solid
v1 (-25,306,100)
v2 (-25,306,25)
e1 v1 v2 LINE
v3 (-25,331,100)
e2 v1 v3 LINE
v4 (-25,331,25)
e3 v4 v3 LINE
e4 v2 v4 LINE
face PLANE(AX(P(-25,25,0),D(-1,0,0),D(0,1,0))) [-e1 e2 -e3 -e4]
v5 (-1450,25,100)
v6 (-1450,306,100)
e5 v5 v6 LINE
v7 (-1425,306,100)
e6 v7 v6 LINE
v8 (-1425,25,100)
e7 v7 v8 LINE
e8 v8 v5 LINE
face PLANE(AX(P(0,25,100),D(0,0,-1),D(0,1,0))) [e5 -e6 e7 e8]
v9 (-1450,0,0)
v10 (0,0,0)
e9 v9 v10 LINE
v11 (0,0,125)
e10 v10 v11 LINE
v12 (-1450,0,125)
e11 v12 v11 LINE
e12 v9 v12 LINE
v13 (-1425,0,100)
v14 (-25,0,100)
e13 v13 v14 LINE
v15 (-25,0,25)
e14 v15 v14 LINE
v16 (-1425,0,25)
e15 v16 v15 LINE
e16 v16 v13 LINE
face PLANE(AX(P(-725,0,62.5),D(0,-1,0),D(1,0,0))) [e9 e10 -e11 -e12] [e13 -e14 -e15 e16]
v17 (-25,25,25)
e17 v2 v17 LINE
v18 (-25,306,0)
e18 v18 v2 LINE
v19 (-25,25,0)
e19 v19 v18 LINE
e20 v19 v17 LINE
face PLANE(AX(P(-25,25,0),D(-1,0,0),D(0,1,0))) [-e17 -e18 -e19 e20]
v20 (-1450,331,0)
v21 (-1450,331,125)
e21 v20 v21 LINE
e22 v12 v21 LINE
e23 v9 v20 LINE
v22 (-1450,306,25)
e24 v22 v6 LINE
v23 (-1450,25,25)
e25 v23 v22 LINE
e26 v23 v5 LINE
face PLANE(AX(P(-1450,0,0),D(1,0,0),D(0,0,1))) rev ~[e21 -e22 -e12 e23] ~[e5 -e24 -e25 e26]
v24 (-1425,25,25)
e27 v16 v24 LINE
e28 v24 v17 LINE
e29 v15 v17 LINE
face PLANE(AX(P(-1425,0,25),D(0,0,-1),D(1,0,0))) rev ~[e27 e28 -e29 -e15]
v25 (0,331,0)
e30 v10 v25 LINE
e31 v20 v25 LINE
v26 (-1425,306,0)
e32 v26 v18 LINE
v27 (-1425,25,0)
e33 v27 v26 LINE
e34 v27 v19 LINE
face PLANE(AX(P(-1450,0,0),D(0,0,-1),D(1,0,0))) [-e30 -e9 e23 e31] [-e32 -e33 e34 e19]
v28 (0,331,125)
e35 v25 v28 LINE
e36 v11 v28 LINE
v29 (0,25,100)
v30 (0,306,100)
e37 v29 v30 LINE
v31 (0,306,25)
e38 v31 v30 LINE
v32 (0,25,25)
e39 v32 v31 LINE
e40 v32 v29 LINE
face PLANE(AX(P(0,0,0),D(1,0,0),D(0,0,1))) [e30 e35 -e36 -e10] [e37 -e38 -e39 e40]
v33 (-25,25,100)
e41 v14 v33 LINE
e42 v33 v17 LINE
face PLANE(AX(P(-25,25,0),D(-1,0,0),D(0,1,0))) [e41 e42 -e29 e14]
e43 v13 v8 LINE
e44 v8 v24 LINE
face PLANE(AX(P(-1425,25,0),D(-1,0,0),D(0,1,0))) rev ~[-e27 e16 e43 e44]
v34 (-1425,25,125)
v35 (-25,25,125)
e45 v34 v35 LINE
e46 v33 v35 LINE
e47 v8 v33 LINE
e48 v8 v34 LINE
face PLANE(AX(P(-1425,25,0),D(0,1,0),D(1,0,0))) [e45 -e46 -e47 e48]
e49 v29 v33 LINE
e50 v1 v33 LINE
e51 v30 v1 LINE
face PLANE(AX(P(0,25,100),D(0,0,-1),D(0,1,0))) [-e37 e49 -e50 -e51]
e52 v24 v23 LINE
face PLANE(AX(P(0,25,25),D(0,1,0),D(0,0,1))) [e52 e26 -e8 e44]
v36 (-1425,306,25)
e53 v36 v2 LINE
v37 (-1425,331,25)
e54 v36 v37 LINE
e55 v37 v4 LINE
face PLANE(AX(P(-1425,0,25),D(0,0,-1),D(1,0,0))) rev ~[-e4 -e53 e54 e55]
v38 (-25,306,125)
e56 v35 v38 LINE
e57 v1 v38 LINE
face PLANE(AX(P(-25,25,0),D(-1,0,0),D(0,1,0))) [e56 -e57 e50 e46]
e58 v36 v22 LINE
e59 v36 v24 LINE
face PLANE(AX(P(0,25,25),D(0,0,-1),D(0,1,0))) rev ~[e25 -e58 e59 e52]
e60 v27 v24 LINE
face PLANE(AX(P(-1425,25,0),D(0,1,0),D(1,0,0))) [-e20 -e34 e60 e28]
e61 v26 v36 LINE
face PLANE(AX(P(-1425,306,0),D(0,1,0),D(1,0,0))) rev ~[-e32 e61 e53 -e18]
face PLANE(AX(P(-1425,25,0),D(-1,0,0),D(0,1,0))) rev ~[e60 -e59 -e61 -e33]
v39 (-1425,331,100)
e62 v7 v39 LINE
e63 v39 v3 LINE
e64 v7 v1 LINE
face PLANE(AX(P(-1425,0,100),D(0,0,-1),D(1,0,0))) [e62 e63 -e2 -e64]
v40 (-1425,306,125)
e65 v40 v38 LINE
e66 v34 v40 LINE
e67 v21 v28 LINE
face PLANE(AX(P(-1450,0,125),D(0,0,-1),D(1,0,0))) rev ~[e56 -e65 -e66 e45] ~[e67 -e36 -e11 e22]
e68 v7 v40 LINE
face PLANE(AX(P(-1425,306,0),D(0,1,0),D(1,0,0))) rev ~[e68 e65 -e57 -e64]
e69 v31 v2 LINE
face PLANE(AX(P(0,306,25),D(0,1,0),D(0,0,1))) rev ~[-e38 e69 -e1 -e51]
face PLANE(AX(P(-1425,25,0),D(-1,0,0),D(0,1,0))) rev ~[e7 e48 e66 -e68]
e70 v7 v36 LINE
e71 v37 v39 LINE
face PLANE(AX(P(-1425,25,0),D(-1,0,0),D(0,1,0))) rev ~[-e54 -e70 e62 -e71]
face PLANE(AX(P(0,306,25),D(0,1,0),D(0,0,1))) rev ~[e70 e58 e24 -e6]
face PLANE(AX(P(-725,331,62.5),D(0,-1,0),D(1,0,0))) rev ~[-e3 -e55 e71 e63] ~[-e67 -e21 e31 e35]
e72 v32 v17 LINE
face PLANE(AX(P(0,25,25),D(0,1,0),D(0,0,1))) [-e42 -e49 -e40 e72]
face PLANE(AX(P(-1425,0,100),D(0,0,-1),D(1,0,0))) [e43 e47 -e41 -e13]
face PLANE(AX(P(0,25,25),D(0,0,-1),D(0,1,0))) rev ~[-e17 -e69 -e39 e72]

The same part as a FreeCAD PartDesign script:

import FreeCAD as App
import Part
import Sketcher

V = App.Vector


def add_polygon(sketch, points):
    """Adds a closed chain of lines whose ends are joined by coincident constraints."""
    first, n = sketch.GeometryCount, len(points)
    for a, b in zip(points, points[1:] + points[:1]):
        sketch.addGeometry(Part.LineSegment(App.Vector(*a, 0), App.Vector(*b, 0)), False)
    for i in range(n):
        sketch.addConstraint(Sketcher.Constraint("Coincident", first + i, 2, first + (i + 1) % n, 1))

doc = App.newDocument("Part")
body = doc.addObject("PartDesign::Body", "Body")

# Sketch on XZ plane
sketch1 = doc.addObject("Sketcher::SketchObject", "Sketch")
body.addObject(sketch1)
sketch1.AttachmentSupport = (doc.XZ_Plane, [""])
sketch1.MapMode = "FlatFace"
add_polygon(sketch1, [(-1450, 125), (-1450, 0), (0, 0), (0, 125)])  # lines 0-3
add_polygon(sketch1, [(-25, 25), (-1425, 25), (-1425, 100), (-25, 100)])  # lines 4-7
sketch1.addConstraint([
    Sketcher.Constraint("Vertical", 0),
    Sketcher.Constraint("Horizontal", 1),
    Sketcher.Constraint("Vertical", 2),
    Sketcher.Constraint("Horizontal", 3),
    Sketcher.Constraint("Horizontal", 4),
    Sketcher.Constraint("Vertical", 5),
    Sketcher.Constraint("Horizontal", 6),
    Sketcher.Constraint("Vertical", 7),
    Sketcher.Constraint("Coincident", 1, 2, -1, 1),
    Sketcher.Constraint("DistanceX", 1, 1, 1, 2, 1450.0),
    Sketcher.Constraint("DistanceX", 4, 2, 4, 1, 1400.0),
    Sketcher.Constraint("DistanceY", 0, 2, 0, 1, 125.0),
    Sketcher.Constraint("DistanceY", 5, 1, 5, 2, 75.0),
    Sketcher.Constraint("DistanceX", 4, 2, -1, 1, 1425.0),
    Sketcher.Constraint("DistanceY", -1, 1, 4, 2, 25.0),
])
pad1 = doc.addObject("PartDesign::Pad", "Pad")
body.addObject(pad1)
pad1.Profile = sketch1
pad1.Length = 331
pad1.Reversed = True

# Sketch on XY plane
sketch2 = doc.addObject("Sketcher::SketchObject", "Sketch001")
body.addObject(sketch2)
sketch2.AttachmentSupport = (doc.XY_Plane, [""])
sketch2.MapMode = "FlatFace"
add_polygon(sketch2, [(-1425, 306), (-1425, 25), (-25, 25), (-25, 306)])  # lines 0-3
sketch2.addConstraint([
    Sketcher.Constraint("Vertical", 0),
    Sketcher.Constraint("Horizontal", 1),
    Sketcher.Constraint("Vertical", 2),
    Sketcher.Constraint("Horizontal", 3),
    Sketcher.Constraint("DistanceX", 1, 1, 1, 2, 1400.0),
    Sketcher.Constraint("DistanceY", 0, 2, 0, 1, 281.0),
    Sketcher.Constraint("DistanceX", 0, 2, -1, 1, 1425.0),
    Sketcher.Constraint("DistanceY", -1, 1, 0, 2, 25.0),
])
pocket1 = doc.addObject("PartDesign::Pocket", "Pocket")
body.addObject(pocket1)
pocket1.Profile = sketch2
pocket1.Length = 377
pocket1.Reversed = True

# Sketch on YZ plane
sketch3 = doc.addObject("Sketcher::SketchObject", "Sketch002")
body.addObject(sketch3)
sketch3.AttachmentSupport = (doc.YZ_Plane, [""])
sketch3.MapMode = "FlatFace"
add_polygon(sketch3, [(25, 100), (25, 25), (306, 25), (306, 100)])  # lines 0-3
sketch3.addConstraint([
    Sketcher.Constraint("Vertical", 0),
    Sketcher.Constraint("Horizontal", 1),
    Sketcher.Constraint("Vertical", 2),
    Sketcher.Constraint("Horizontal", 3),
    Sketcher.Constraint("DistanceX", 1, 1, 1, 2, 281.0),
    Sketcher.Constraint("DistanceY", 0, 2, 0, 1, 75.0),
    Sketcher.Constraint("DistanceX", -1, 1, 0, 2, 25.0),
    Sketcher.Constraint("DistanceY", -1, 1, 0, 2, 25.0),
])
pocket2 = doc.addObject("PartDesign::Pocket", "Pocket001")
body.addObject(pocket2)
pocket2.Profile = sketch3
pocket2.Length = 1538

doc.recompute()
